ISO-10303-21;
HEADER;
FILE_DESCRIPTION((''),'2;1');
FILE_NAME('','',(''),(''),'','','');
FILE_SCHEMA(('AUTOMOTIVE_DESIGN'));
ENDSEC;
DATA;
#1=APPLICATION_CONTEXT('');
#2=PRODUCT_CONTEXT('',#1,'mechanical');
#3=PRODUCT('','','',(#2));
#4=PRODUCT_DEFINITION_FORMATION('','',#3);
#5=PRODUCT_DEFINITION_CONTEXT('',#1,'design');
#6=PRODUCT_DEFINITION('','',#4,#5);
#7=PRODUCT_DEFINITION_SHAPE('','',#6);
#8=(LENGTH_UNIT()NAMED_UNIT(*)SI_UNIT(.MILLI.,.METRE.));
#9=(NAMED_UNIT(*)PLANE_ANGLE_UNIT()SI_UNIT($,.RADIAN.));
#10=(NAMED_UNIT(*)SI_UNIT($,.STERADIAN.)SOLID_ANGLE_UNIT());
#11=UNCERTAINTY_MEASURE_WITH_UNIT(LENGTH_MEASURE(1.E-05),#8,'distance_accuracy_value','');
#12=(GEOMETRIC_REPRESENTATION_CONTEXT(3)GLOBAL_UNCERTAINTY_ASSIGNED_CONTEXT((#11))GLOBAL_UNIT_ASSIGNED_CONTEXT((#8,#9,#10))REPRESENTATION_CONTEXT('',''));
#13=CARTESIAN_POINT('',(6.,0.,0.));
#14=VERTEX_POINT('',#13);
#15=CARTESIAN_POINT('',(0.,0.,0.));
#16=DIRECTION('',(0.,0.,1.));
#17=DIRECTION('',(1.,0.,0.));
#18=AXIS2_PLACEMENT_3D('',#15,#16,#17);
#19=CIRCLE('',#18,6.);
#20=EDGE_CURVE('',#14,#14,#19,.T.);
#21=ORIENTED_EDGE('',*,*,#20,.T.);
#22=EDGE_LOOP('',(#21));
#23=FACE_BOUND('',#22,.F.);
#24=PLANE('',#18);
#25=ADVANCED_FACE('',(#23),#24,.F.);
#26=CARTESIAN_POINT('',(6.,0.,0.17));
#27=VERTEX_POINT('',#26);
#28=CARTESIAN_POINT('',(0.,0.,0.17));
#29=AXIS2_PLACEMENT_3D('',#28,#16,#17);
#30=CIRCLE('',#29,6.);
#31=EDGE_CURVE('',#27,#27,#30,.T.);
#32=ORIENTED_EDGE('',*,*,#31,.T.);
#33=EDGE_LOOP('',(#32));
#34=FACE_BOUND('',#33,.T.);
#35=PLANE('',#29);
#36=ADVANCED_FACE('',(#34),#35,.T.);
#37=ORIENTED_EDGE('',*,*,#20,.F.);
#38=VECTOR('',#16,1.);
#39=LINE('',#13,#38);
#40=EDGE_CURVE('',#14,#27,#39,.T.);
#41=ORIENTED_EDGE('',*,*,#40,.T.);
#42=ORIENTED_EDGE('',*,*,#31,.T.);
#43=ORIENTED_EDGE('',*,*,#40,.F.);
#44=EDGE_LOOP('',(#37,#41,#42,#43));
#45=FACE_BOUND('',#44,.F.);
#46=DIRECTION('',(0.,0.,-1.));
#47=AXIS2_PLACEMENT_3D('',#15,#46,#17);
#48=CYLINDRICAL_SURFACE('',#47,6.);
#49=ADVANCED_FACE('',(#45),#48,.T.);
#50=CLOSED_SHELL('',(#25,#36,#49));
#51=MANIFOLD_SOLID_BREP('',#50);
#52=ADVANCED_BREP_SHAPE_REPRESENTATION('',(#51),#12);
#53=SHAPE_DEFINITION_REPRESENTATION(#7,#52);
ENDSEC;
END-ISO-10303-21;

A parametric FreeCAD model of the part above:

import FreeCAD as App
import Part
import Sketcher
from FreeCAD import Vector
Q = App.Units.Quantity

doc = App.newDocument("Part")
body = doc.addObject("PartDesign::Body", "Body")

# Sketch on XY plane
sketch1 = body.newObject("Sketcher::SketchObject", "Sketch")
sketch1.AttachmentSupport = (doc.getObject("XY_Plane"), [""])
sketch1.MapMode = "FlatFace"
sketch1.addGeometry(Part.Circle(Vector(0, 0, 0), Vector(0, 0, 1), 6), False)
sketch1.addConstraint([
    Sketcher.Constraint("Coincident", 0, 3, -1, 1),
    Sketcher.Constraint("Diameter", 0, Q("12 mm")),
])
pad1 = body.newObject("PartDesign::Pad", "Pad")
pad1.Profile = sketch1
pad1.Length = 0.17

doc.recompute()
